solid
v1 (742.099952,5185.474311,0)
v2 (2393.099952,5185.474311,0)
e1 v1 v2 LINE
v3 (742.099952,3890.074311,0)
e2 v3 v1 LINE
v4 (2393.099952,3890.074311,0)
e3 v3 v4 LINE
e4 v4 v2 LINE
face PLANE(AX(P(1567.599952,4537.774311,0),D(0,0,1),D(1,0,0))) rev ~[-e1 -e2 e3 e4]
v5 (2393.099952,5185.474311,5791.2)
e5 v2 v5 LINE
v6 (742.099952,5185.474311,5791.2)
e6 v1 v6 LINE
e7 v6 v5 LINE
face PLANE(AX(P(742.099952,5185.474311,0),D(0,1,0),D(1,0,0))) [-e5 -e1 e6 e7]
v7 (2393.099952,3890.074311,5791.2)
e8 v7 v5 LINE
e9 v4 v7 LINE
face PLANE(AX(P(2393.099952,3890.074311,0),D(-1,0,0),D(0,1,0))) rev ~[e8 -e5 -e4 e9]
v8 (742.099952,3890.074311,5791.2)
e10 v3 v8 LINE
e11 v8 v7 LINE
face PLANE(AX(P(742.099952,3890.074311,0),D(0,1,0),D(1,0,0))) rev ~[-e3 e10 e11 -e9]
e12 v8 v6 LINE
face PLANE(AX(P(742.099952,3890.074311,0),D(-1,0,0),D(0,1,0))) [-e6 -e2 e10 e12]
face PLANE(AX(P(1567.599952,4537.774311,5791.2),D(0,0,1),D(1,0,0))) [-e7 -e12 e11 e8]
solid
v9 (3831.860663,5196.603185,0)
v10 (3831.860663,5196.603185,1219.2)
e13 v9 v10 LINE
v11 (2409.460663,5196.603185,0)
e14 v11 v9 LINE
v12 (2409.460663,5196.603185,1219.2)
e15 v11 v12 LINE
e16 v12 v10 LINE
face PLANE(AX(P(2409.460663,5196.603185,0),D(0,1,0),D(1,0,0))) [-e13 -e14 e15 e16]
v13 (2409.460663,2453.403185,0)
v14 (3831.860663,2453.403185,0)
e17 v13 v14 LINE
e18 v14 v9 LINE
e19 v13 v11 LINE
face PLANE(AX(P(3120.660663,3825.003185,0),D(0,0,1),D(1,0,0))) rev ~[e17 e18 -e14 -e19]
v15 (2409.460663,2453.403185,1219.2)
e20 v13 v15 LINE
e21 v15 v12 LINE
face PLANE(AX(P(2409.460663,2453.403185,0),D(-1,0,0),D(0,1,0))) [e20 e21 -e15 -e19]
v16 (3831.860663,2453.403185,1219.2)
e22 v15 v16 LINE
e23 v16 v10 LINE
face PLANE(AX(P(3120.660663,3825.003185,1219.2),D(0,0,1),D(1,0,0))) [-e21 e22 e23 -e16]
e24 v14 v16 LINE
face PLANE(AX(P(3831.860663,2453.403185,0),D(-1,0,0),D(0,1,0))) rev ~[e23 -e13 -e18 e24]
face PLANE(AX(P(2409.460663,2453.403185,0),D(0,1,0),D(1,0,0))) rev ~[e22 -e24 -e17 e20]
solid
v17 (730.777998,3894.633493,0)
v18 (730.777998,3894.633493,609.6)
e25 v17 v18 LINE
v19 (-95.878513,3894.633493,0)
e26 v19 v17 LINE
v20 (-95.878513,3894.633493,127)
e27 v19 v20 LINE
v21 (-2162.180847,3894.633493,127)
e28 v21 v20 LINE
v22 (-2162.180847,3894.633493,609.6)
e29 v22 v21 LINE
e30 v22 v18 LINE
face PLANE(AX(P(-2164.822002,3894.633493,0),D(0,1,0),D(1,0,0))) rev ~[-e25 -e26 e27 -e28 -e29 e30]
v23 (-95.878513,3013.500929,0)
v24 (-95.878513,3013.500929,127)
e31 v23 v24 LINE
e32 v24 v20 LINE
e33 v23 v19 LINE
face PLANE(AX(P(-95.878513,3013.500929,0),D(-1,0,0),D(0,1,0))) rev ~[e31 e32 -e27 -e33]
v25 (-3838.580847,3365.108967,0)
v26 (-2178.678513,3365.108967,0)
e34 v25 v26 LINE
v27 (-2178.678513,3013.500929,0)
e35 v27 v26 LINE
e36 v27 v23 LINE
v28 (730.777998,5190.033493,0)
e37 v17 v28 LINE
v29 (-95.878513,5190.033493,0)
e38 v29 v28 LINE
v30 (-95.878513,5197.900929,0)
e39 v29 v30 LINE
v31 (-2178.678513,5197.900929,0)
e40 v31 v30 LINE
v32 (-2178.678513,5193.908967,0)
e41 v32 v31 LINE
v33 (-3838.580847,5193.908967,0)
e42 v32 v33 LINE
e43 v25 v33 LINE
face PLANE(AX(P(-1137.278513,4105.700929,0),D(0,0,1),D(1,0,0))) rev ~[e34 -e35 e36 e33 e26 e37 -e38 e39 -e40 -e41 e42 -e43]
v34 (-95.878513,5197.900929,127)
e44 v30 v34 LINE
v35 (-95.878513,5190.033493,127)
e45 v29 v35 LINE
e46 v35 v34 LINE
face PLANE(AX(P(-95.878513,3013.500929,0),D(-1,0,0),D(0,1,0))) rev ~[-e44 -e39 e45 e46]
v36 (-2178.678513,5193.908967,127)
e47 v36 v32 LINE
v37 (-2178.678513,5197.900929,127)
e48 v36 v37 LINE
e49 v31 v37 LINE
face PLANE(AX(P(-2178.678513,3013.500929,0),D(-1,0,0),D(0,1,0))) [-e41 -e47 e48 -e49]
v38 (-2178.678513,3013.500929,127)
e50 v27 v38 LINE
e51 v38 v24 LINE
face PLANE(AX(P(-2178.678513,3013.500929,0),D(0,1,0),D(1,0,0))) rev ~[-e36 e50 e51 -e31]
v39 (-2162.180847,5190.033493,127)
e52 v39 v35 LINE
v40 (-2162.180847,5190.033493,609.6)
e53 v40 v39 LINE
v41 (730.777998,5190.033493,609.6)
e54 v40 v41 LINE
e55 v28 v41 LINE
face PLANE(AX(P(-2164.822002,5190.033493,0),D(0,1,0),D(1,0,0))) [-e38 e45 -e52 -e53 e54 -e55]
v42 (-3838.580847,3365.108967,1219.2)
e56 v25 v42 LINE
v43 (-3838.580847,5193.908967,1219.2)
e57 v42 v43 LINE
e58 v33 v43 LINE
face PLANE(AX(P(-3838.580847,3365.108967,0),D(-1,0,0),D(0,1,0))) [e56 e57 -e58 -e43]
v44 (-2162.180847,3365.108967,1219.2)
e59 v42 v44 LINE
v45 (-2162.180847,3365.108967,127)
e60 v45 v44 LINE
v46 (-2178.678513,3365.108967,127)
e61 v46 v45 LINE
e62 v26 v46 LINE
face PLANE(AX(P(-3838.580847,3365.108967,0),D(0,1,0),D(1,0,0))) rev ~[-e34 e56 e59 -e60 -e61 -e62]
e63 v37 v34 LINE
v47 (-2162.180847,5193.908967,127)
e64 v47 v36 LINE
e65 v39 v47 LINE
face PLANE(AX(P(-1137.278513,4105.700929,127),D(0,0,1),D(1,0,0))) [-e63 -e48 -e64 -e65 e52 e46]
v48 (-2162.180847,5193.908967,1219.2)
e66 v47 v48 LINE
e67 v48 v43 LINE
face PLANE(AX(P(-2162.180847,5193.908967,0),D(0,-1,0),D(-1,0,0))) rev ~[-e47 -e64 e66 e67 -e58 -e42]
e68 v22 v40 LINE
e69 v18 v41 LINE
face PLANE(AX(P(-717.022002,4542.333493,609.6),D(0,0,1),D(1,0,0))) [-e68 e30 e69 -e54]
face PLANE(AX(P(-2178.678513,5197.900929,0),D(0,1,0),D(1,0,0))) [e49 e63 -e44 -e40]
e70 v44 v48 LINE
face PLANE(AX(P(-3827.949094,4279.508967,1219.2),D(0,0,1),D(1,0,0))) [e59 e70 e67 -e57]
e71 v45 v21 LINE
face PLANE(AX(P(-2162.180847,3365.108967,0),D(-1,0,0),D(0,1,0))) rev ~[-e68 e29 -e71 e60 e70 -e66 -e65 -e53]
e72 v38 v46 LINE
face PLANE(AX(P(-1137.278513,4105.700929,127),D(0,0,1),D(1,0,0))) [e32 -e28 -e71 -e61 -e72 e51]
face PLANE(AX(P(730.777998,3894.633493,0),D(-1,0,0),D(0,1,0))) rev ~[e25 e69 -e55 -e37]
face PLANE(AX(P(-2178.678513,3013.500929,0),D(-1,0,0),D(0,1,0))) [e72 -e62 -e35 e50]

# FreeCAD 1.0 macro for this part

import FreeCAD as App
import Part
import Sketcher
from FreeCAD import Vector
Q = App.Units.Quantity

doc = App.newDocument("Part")
body = doc.addObject("PartDesign::Body", "Body")

# Sketch on XY plane
sketch1 = body.newObject("Sketcher::SketchObject", "Sketch")
sketch1.AttachmentSupport = (doc.getObject("XY_Plane"), [""])
sketch1.MapMode = "FlatFace"
sketch1.addGeometry(Part.LineSegment(Vector(-3839, 5194, 0), Vector(-3839, 3365, 0)), False)
sketch1.addGeometry(Part.LineSegment(Vector(-3839, 3365, 0), Vector(-2162, 3365, 0)), False)
sketch1.addGeometry(Part.LineSegment(Vector(-2162, 3365, 0), Vector(-2162, 5194, 0)), False)
sketch1.addGeometry(Part.LineSegment(Vector(-2162, 5194, 0), Vector(-3839, 5194, 0)), False)
sketch1.addConstraint(Sketcher.Constraint("Coincident", 0, 2, 1, 1))
sketch1.addConstraint(Sketcher.Constraint("Coincident", 1, 2, 2, 1))
sketch1.addConstraint(Sketcher.Constraint("Coincident", 2, 2, 3, 1))
sketch1.addConstraint(Sketcher.Constraint("Coincident", 3, 2, 0, 1))
sketch1.addConstraint(Sketcher.Constraint("Vertical", 0))
sketch1.addConstraint(Sketcher.Constraint("Horizontal", 1))
sketch1.addConstraint(Sketcher.Constraint("Vertical", 2))
sketch1.addConstraint(Sketcher.Constraint("Horizontal", 3))
sketch1.addConstraint(Sketcher.Constraint("DistanceX", 1, 1, 1, 2, Q("66 in")))
sketch1.addConstraint(Sketcher.Constraint("DistanceY", 0, 2, 0, 1, Q("72 in")))
sketch1.addConstraint(Sketcher.Constraint("DistanceX", 0, 2, -1, 1, Q("3838.580847 mm")))
sketch1.addConstraint(Sketcher.Constraint("DistanceY", -1, 1, 0, 2, Q("3365.108967 mm")))
pad1 = body.newObject("PartDesign::Pad", "Pad")
pad1.Profile = sketch1
pad1.Length = Q("48 in")

# Sketch on XY plane
sketch2 = body.newObject("Sketcher::SketchObject", "Sketch001")
sketch2.AttachmentSupport = (doc.getObject("XY_Plane"), [""])
sketch2.MapMode = "FlatFace"
sketch2.addGeometry(Part.LineSegment(Vector(-2165, 5190, 0), Vector(-2165, 3895, 0)), False)
sketch2.addGeometry(Part.LineSegment(Vector(-2165, 3895, 0), Vector(731, 3895, 0)), False)
sketch2.addGeometry(Part.LineSegment(Vector(731, 3895, 0), Vector(731, 5190, 0)), False)
sketch2.addGeometry(Part.LineSegment(Vector(731, 5190, 0), Vector(-2165, 5190, 0)), False)
sketch2.addConstraint(Sketcher.Constraint("Coincident", 0, 2, 1, 1))
sketch2.addConstraint(Sketcher.Constraint("Coincident", 1, 2, 2, 1))
sketch2.addConstraint(Sketcher.Constraint("Coincident", 2, 2, 3, 1))
sketch2.addConstraint(Sketcher.Constraint("Coincident", 3, 2, 0, 1))
sketch2.addConstraint(Sketcher.Constraint("Vertical", 0))
sketch2.addConstraint(Sketcher.Constraint("Horizontal", 1))
sketch2.addConstraint(Sketcher.Constraint("Vertical", 2))
sketch2.addConstraint(Sketcher.Constraint("Horizontal", 3))
sketch2.addConstraint(Sketcher.Constraint("DistanceX", 1, 1, 1, 2, Q("114 in")))
sketch2.addConstraint(Sketcher.Constraint("DistanceY", 0, 2, 0, 1, Q("51 in")))
sketch2.addConstraint(Sketcher.Constraint("DistanceX", 0, 2, -1, 1, Q("2164.822002 mm")))
sketch2.addConstraint(Sketcher.Constraint("DistanceY", -1, 1, 0, 2, Q("3894.633493 mm")))
pad2 = body.newObject("PartDesign::Pad", "Pad001")
pad2.Profile = sketch2
pad2.Length = Q("24 in")

# Sketch on XY plane
sketch3 = body.newObject("Sketcher::SketchObject", "Sketch002")
sketch3.AttachmentSupport = (doc.getObject("XY_Plane"), [""])
sketch3.MapMode = "FlatFace"
sketch3.addGeometry(Part.LineSegment(Vector(-2179, 5198, 0), Vector(-2179, 3014, 0)), False)
sketch3.addGeometry(Part.LineSegment(Vector(-2179, 3014, 0), Vector(-96, 3014, 0)), False)
sketch3.addGeometry(Part.LineSegment(Vector(-96, 3014, 0), Vector(-96, 5198, 0)), False)
sketch3.addGeometry(Part.LineSegment(Vector(-96, 5198, 0), Vector(-2179, 5198, 0)), False)
sketch3.addConstraint(Sketcher.Constraint("Coincident", 0, 2, 1, 1))
sketch3.addConstraint(Sketcher.Constraint("Coincident", 1, 2, 2, 1))
sketch3.addConstraint(Sketcher.Constraint("Coincident", 2, 2, 3, 1))
sketch3.addConstraint(Sketcher.Constraint("Coincident", 3, 2, 0, 1))
sketch3.addConstraint(Sketcher.Constraint("Vertical", 0))
sketch3.addConstraint(Sketcher.Constraint("Horizontal", 1))
sketch3.addConstraint(Sketcher.Constraint("Vertical", 2))
sketch3.addConstraint(Sketcher.Constraint("Horizontal", 3))
sketch3.addConstraint(Sketcher.Constraint("DistanceX", 1, 1, 1, 2, Q("82 in")))
sketch3.addConstraint(Sketcher.Constraint("DistanceY", 0, 2, 0, 1, Q("86 in")))
sketch3.addConstraint(Sketcher.Constraint("DistanceY", -1, 1, 0, 2, Q("3013.500929 mm")))
sketch3.addConstraint(Sketcher.Constraint("DistanceX", 0, 2, -1, 1, Q("2178.678513 mm")))
pad3 = body.newObject("PartDesign::Pad", "Pad002")
pad3.Profile = sketch3
pad3.Length = Q("5 in")
body2 = doc.addObject("PartDesign::Body", "Body001")

# Sketch on XY plane
sketch4 = body2.newObject("Sketcher::SketchObject", "Sketch003")
sketch4.AttachmentSupport = (doc.getObject("XY_Plane001"), [""])
sketch4.MapMode = "FlatFace"
sketch4.addGeometry(Part.LineSegment(Vector(742, 5185, 0), Vector(742, 3890, 0)), False)
sketch4.addGeometry(Part.LineSegment(Vector(742, 3890, 0), Vector(2393, 3890, 0)), False)
sketch4.addGeometry(Part.LineSegment(Vector(2393, 3890, 0), Vector(2393, 5185, 0)), False)
sketch4.addGeometry(Part.LineSegment(Vector(2393, 5185, 0), Vector(742, 5185, 0)), False)
sketch4.addConstraint(Sketcher.Constraint("Coincident", 0, 2, 1, 1))
sketch4.addConstraint(Sketcher.Constraint("Coincident", 1, 2, 2, 1))
sketch4.addConstraint(Sketcher.Constraint("Coincident", 2, 2, 3, 1))
sketch4.addConstraint(Sketcher.Constraint("Coincident", 3, 2, 0, 1))
sketch4.addConstraint(Sketcher.Constraint("Vertical", 0))
sketch4.addConstraint(Sketcher.Constraint("Horizontal", 1))
sketch4.addConstraint(Sketcher.Constraint("Vertical", 2))
sketch4.addConstraint(Sketcher.Constraint("Horizontal", 3))
sketch4.addConstraint(Sketcher.Constraint("DistanceX", 1, 1, 1, 2, Q("65 in")))
sketch4.addConstraint(Sketcher.Constraint("DistanceY", 0, 2, 0, 1, Q("51 in")))
sketch4.addConstraint(Sketcher.Constraint("DistanceX", -1, 1, 0, 2, Q("742.099952 mm")))
sketch4.addConstraint(Sketcher.Constraint("DistanceY", -1, 1, 0, 2, Q("3890.074311 mm")))
pad4 = body2.newObject("PartDesign::Pad", "Pad003")
pad4.Profile = sketch4
pad4.Length = Q("228 in")
body3 = doc.addObject("PartDesign::Body", "Body002")

# Sketch on XY plane
sketch5 = body3.newObject("Sketcher::SketchObject", "Sketch004")
sketch5.AttachmentSupport = (doc.getObject("XY_Plane002"), [""])
sketch5.MapMode = "FlatFace"
sketch5.addGeometry(Part.LineSegment(Vector(2409, 5197, 0), Vector(2409, 2453, 0)), False)
sketch5.addGeometry(Part.LineSegment(Vector(2409, 2453, 0), Vector(3832, 2453, 0)), False)
sketch5.addGeometry(Part.LineSegment(Vector(3832, 2453, 0), Vector(3832, 5197, 0)), False)
sketch5.addGeometry(Part.LineSegment(Vector(3832, 5197, 0), Vector(2409, 5197, 0)), False)
sketch5.addConstraint(Sketcher.Constraint("Coincident", 0, 2, 1, 1))
sketch5.addConstraint(Sketcher.Constraint("Coincident", 1, 2, 2, 1))
sketch5.addConstraint(Sketcher.Constraint("Coincident", 2, 2, 3, 1))
sketch5.addConstraint(Sketcher.Constraint("Coincident", 3, 2, 0, 1))
sketch5.addConstraint(Sketcher.Constraint("Vertical", 0))
sketch5.addConstraint(Sketcher.Constraint("Horizontal", 1))
sketch5.addConstraint(Sketcher.Constraint("Vertical", 2))
sketch5.addConstraint(Sketcher.Constraint("Horizontal", 3))
sketch5.addConstraint(Sketcher.Constraint("DistanceX", 1, 1, 1, 2, Q("56 in")))
sketch5.addConstraint(Sketcher.Constraint("DistanceY", 0, 2, 0, 1, Q("108 in")))
sketch5.addConstraint(Sketcher.Constraint("DistanceX", -1, 1, 0, 2, Q("2409.460663 mm")))
sketch5.addConstraint(Sketcher.Constraint("DistanceY", -1, 1, 0, 2, Q("2453.403185 mm")))
pad5 = body3.newObject("PartDesign::Pad", "Pad004")
pad5.Profile = sketch5
pad5.Length = Q("48 in")

doc.recompute()
